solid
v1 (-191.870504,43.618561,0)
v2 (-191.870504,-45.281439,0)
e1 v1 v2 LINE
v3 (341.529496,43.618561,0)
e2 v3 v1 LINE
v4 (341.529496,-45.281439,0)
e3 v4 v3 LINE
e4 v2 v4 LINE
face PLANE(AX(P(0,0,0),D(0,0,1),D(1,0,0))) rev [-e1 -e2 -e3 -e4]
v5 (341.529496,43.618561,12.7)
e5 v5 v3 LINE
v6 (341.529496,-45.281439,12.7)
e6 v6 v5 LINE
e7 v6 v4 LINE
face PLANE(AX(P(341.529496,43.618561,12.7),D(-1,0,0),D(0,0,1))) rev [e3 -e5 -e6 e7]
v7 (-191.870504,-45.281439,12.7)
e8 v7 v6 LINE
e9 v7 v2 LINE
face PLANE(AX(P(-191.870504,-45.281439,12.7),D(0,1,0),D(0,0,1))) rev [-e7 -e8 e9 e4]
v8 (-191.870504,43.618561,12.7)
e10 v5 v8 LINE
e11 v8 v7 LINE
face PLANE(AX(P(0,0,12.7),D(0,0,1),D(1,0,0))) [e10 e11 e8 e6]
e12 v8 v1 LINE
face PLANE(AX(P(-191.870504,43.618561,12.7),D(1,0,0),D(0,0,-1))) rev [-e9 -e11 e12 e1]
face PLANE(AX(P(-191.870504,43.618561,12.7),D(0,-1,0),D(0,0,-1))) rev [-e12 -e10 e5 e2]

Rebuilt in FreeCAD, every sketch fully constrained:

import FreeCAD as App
import Part
import Sketcher
Q = App.Units.Quantity


def add_polygon(sketch, points):
    """Adds a closed chain of lines whose ends are joined by coincident constraints."""
    first, n = sketch.GeometryCount, len(points)
    for a, b in zip(points, points[1:] + points[:1]):
        sketch.addGeometry(Part.LineSegment(App.Vector(*a, 0), App.Vector(*b, 0)), False)
    for i in range(n):
        sketch.addConstraint(Sketcher.Constraint("Coincident", first + i, 2, first + (i + 1) % n, 1))

doc = App.newDocument("Part")
body = doc.addObject("PartDesign::Body", "Body")

sketch1 = doc.addObject("Sketcher::SketchObject", "Sketch")
body.addObject(sketch1)
sketch1.AttachmentSupport = (doc.XY_Plane, [""])
sketch1.MapMode = "FlatFace"
add_polygon(sketch1, [(-192, 44), (-192, -45), (342, -45), (342, 44)])
sketch1.addConstraint([
    Sketcher.Constraint("Vertical", 0),
    Sketcher.Constraint("Horizontal", 1),
    Sketcher.Constraint("Vertical", 2),
    Sketcher.Constraint("Horizontal", 3),
    Sketcher.Constraint("DistanceX", 1, 1, 1, 2, Q("21 in")),
    Sketcher.Constraint("DistanceY", 0, 2, 0, 1, Q("3.5 in")),
    Sketcher.Constraint("DistanceY", 0, 2, -1, 1, 45.281439),
    Sketcher.Constraint("DistanceX", 0, 2, -1, 1, 191.870504),
])
pad1 = doc.addObject("PartDesign::Pad", "Pad")
body.addObject(pad1)
pad1.Profile = sketch1
pad1.Length = Q("0.5 in")

doc.recompute()
